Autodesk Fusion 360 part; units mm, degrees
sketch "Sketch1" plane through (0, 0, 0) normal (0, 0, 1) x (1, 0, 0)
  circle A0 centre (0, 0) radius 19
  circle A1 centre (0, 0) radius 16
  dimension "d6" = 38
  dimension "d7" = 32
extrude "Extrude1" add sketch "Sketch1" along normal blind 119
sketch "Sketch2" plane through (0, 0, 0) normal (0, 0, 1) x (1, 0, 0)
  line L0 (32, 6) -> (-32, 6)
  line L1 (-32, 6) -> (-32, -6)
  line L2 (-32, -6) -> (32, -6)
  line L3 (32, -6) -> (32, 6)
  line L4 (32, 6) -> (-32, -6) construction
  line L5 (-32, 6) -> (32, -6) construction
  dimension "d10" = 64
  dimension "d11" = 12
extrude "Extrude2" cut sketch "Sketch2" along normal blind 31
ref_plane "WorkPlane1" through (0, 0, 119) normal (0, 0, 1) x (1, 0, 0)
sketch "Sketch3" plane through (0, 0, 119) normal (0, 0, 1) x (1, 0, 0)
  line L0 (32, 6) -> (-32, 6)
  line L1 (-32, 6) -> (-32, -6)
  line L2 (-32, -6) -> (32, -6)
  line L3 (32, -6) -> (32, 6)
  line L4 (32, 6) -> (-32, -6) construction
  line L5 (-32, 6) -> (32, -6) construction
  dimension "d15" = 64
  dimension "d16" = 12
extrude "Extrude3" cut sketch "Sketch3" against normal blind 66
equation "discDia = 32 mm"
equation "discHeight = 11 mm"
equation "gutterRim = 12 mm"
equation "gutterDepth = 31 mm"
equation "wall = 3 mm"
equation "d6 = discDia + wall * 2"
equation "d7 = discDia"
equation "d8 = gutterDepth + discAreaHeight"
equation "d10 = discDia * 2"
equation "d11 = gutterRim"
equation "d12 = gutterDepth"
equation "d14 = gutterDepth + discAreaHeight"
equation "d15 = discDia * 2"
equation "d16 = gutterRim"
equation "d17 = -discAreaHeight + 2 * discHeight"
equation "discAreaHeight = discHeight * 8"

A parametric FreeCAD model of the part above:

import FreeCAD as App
import Part
import Sketcher


def add_polygon(sketch, points):
    """Adds a closed chain of lines whose ends are joined by coincident constraints."""
    first, n = sketch.GeometryCount, len(points)
    for a, b in zip(points, points[1:] + points[:1]):
        sketch.addGeometry(Part.LineSegment(App.Vector(*a, 0), App.Vector(*b, 0)), False)
    for i in range(n):
        sketch.addConstraint(Sketcher.Constraint("Coincident", first + i, 2, first + (i + 1) % n, 1))

doc = App.newDocument("Part")
body = doc.addObject("PartDesign::Body", "Body")

sketch1 = doc.addObject("Sketcher::SketchObject", "Sketch")
body.addObject(sketch1)
sketch1.AttachmentSupport = (doc.XY_Plane, [""])
sketch1.MapMode = "FlatFace"
sketch1.addGeometry([
    Part.Circle(App.Vector(0, 0, 0), App.Vector(0, 0, 1), 19),
    Part.Circle(App.Vector(0, 0, 0), App.Vector(0, 0, 1), 16),
], False)
sketch1.addConstraint([
    Sketcher.Constraint("Coincident", 0, 3, -1, 1),
    Sketcher.Constraint("Coincident", 1, 3, -1, 1),
    Sketcher.Constraint("Diameter", 0, 38.0),
    Sketcher.Constraint("Diameter", 1, 32.0),
])
pad1 = doc.addObject("PartDesign::Pad", "Pad")
body.addObject(pad1)
pad1.Profile = sketch1
pad1.Length = 119

sketch2 = doc.addObject("Sketcher::SketchObject", "Sketch001")
body.addObject(sketch2)
sketch2.AttachmentSupport = (doc.XY_Plane, [""])
sketch2.MapMode = "FlatFace"
add_polygon(sketch2, [(32, -6), (32, 6), (-32, 6), (-32, -6)])
sketch2.addConstraint([
    Sketcher.Constraint("Vertical", 0),
    Sketcher.Constraint("Horizontal", 1),
    Sketcher.Constraint("Vertical", 2),
    Sketcher.Constraint("Horizontal", 3),
    Sketcher.Constraint("Symmetric", 0, 2, 2, 2, -1, 1),
    Sketcher.Constraint("DistanceX", 1, 2, 1, 1, 64.0),
    Sketcher.Constraint("DistanceY", 0, 1, 0, 2, 12.0),
])
pocket1 = doc.addObject("PartDesign::Pocket", "Pocket")
body.addObject(pocket1)
pocket1.Profile = sketch2
pocket1.Length = 31
pocket1.Reversed = True

sketch3 = doc.addObject("Sketcher::SketchObject", "Sketch002")
body.addObject(sketch3)
sketch3.AttachmentSupport = (doc.XY_Plane, [""])
sketch3.MapMode = "FlatFace"
sketch3.AttachmentOffset = App.Placement(App.Vector(0, 0, 119), App.Rotation())
add_polygon(sketch3, [(32, -6), (32, 6), (-32, 6), (-32, -6)])
sketch3.addConstraint([
    Sketcher.Constraint("Vertical", 0),
    Sketcher.Constraint("Horizontal", 1),
    Sketcher.Constraint("Vertical", 2),
    Sketcher.Constraint("Horizontal", 3),
    Sketcher.Constraint("Symmetric", 0, 2, 2, 2, -1, 1),
    Sketcher.Constraint("DistanceX", 1, 2, 1, 1, 64.0),
    Sketcher.Constraint("DistanceY", 0, 1, 0, 2, 12.0),
])
pocket2 = doc.addObject("PartDesign::Pocket", "Pocket001")
body.addObject(pocket2)
pocket2.Profile = sketch3
pocket2.Length = 66

doc.recompute()
